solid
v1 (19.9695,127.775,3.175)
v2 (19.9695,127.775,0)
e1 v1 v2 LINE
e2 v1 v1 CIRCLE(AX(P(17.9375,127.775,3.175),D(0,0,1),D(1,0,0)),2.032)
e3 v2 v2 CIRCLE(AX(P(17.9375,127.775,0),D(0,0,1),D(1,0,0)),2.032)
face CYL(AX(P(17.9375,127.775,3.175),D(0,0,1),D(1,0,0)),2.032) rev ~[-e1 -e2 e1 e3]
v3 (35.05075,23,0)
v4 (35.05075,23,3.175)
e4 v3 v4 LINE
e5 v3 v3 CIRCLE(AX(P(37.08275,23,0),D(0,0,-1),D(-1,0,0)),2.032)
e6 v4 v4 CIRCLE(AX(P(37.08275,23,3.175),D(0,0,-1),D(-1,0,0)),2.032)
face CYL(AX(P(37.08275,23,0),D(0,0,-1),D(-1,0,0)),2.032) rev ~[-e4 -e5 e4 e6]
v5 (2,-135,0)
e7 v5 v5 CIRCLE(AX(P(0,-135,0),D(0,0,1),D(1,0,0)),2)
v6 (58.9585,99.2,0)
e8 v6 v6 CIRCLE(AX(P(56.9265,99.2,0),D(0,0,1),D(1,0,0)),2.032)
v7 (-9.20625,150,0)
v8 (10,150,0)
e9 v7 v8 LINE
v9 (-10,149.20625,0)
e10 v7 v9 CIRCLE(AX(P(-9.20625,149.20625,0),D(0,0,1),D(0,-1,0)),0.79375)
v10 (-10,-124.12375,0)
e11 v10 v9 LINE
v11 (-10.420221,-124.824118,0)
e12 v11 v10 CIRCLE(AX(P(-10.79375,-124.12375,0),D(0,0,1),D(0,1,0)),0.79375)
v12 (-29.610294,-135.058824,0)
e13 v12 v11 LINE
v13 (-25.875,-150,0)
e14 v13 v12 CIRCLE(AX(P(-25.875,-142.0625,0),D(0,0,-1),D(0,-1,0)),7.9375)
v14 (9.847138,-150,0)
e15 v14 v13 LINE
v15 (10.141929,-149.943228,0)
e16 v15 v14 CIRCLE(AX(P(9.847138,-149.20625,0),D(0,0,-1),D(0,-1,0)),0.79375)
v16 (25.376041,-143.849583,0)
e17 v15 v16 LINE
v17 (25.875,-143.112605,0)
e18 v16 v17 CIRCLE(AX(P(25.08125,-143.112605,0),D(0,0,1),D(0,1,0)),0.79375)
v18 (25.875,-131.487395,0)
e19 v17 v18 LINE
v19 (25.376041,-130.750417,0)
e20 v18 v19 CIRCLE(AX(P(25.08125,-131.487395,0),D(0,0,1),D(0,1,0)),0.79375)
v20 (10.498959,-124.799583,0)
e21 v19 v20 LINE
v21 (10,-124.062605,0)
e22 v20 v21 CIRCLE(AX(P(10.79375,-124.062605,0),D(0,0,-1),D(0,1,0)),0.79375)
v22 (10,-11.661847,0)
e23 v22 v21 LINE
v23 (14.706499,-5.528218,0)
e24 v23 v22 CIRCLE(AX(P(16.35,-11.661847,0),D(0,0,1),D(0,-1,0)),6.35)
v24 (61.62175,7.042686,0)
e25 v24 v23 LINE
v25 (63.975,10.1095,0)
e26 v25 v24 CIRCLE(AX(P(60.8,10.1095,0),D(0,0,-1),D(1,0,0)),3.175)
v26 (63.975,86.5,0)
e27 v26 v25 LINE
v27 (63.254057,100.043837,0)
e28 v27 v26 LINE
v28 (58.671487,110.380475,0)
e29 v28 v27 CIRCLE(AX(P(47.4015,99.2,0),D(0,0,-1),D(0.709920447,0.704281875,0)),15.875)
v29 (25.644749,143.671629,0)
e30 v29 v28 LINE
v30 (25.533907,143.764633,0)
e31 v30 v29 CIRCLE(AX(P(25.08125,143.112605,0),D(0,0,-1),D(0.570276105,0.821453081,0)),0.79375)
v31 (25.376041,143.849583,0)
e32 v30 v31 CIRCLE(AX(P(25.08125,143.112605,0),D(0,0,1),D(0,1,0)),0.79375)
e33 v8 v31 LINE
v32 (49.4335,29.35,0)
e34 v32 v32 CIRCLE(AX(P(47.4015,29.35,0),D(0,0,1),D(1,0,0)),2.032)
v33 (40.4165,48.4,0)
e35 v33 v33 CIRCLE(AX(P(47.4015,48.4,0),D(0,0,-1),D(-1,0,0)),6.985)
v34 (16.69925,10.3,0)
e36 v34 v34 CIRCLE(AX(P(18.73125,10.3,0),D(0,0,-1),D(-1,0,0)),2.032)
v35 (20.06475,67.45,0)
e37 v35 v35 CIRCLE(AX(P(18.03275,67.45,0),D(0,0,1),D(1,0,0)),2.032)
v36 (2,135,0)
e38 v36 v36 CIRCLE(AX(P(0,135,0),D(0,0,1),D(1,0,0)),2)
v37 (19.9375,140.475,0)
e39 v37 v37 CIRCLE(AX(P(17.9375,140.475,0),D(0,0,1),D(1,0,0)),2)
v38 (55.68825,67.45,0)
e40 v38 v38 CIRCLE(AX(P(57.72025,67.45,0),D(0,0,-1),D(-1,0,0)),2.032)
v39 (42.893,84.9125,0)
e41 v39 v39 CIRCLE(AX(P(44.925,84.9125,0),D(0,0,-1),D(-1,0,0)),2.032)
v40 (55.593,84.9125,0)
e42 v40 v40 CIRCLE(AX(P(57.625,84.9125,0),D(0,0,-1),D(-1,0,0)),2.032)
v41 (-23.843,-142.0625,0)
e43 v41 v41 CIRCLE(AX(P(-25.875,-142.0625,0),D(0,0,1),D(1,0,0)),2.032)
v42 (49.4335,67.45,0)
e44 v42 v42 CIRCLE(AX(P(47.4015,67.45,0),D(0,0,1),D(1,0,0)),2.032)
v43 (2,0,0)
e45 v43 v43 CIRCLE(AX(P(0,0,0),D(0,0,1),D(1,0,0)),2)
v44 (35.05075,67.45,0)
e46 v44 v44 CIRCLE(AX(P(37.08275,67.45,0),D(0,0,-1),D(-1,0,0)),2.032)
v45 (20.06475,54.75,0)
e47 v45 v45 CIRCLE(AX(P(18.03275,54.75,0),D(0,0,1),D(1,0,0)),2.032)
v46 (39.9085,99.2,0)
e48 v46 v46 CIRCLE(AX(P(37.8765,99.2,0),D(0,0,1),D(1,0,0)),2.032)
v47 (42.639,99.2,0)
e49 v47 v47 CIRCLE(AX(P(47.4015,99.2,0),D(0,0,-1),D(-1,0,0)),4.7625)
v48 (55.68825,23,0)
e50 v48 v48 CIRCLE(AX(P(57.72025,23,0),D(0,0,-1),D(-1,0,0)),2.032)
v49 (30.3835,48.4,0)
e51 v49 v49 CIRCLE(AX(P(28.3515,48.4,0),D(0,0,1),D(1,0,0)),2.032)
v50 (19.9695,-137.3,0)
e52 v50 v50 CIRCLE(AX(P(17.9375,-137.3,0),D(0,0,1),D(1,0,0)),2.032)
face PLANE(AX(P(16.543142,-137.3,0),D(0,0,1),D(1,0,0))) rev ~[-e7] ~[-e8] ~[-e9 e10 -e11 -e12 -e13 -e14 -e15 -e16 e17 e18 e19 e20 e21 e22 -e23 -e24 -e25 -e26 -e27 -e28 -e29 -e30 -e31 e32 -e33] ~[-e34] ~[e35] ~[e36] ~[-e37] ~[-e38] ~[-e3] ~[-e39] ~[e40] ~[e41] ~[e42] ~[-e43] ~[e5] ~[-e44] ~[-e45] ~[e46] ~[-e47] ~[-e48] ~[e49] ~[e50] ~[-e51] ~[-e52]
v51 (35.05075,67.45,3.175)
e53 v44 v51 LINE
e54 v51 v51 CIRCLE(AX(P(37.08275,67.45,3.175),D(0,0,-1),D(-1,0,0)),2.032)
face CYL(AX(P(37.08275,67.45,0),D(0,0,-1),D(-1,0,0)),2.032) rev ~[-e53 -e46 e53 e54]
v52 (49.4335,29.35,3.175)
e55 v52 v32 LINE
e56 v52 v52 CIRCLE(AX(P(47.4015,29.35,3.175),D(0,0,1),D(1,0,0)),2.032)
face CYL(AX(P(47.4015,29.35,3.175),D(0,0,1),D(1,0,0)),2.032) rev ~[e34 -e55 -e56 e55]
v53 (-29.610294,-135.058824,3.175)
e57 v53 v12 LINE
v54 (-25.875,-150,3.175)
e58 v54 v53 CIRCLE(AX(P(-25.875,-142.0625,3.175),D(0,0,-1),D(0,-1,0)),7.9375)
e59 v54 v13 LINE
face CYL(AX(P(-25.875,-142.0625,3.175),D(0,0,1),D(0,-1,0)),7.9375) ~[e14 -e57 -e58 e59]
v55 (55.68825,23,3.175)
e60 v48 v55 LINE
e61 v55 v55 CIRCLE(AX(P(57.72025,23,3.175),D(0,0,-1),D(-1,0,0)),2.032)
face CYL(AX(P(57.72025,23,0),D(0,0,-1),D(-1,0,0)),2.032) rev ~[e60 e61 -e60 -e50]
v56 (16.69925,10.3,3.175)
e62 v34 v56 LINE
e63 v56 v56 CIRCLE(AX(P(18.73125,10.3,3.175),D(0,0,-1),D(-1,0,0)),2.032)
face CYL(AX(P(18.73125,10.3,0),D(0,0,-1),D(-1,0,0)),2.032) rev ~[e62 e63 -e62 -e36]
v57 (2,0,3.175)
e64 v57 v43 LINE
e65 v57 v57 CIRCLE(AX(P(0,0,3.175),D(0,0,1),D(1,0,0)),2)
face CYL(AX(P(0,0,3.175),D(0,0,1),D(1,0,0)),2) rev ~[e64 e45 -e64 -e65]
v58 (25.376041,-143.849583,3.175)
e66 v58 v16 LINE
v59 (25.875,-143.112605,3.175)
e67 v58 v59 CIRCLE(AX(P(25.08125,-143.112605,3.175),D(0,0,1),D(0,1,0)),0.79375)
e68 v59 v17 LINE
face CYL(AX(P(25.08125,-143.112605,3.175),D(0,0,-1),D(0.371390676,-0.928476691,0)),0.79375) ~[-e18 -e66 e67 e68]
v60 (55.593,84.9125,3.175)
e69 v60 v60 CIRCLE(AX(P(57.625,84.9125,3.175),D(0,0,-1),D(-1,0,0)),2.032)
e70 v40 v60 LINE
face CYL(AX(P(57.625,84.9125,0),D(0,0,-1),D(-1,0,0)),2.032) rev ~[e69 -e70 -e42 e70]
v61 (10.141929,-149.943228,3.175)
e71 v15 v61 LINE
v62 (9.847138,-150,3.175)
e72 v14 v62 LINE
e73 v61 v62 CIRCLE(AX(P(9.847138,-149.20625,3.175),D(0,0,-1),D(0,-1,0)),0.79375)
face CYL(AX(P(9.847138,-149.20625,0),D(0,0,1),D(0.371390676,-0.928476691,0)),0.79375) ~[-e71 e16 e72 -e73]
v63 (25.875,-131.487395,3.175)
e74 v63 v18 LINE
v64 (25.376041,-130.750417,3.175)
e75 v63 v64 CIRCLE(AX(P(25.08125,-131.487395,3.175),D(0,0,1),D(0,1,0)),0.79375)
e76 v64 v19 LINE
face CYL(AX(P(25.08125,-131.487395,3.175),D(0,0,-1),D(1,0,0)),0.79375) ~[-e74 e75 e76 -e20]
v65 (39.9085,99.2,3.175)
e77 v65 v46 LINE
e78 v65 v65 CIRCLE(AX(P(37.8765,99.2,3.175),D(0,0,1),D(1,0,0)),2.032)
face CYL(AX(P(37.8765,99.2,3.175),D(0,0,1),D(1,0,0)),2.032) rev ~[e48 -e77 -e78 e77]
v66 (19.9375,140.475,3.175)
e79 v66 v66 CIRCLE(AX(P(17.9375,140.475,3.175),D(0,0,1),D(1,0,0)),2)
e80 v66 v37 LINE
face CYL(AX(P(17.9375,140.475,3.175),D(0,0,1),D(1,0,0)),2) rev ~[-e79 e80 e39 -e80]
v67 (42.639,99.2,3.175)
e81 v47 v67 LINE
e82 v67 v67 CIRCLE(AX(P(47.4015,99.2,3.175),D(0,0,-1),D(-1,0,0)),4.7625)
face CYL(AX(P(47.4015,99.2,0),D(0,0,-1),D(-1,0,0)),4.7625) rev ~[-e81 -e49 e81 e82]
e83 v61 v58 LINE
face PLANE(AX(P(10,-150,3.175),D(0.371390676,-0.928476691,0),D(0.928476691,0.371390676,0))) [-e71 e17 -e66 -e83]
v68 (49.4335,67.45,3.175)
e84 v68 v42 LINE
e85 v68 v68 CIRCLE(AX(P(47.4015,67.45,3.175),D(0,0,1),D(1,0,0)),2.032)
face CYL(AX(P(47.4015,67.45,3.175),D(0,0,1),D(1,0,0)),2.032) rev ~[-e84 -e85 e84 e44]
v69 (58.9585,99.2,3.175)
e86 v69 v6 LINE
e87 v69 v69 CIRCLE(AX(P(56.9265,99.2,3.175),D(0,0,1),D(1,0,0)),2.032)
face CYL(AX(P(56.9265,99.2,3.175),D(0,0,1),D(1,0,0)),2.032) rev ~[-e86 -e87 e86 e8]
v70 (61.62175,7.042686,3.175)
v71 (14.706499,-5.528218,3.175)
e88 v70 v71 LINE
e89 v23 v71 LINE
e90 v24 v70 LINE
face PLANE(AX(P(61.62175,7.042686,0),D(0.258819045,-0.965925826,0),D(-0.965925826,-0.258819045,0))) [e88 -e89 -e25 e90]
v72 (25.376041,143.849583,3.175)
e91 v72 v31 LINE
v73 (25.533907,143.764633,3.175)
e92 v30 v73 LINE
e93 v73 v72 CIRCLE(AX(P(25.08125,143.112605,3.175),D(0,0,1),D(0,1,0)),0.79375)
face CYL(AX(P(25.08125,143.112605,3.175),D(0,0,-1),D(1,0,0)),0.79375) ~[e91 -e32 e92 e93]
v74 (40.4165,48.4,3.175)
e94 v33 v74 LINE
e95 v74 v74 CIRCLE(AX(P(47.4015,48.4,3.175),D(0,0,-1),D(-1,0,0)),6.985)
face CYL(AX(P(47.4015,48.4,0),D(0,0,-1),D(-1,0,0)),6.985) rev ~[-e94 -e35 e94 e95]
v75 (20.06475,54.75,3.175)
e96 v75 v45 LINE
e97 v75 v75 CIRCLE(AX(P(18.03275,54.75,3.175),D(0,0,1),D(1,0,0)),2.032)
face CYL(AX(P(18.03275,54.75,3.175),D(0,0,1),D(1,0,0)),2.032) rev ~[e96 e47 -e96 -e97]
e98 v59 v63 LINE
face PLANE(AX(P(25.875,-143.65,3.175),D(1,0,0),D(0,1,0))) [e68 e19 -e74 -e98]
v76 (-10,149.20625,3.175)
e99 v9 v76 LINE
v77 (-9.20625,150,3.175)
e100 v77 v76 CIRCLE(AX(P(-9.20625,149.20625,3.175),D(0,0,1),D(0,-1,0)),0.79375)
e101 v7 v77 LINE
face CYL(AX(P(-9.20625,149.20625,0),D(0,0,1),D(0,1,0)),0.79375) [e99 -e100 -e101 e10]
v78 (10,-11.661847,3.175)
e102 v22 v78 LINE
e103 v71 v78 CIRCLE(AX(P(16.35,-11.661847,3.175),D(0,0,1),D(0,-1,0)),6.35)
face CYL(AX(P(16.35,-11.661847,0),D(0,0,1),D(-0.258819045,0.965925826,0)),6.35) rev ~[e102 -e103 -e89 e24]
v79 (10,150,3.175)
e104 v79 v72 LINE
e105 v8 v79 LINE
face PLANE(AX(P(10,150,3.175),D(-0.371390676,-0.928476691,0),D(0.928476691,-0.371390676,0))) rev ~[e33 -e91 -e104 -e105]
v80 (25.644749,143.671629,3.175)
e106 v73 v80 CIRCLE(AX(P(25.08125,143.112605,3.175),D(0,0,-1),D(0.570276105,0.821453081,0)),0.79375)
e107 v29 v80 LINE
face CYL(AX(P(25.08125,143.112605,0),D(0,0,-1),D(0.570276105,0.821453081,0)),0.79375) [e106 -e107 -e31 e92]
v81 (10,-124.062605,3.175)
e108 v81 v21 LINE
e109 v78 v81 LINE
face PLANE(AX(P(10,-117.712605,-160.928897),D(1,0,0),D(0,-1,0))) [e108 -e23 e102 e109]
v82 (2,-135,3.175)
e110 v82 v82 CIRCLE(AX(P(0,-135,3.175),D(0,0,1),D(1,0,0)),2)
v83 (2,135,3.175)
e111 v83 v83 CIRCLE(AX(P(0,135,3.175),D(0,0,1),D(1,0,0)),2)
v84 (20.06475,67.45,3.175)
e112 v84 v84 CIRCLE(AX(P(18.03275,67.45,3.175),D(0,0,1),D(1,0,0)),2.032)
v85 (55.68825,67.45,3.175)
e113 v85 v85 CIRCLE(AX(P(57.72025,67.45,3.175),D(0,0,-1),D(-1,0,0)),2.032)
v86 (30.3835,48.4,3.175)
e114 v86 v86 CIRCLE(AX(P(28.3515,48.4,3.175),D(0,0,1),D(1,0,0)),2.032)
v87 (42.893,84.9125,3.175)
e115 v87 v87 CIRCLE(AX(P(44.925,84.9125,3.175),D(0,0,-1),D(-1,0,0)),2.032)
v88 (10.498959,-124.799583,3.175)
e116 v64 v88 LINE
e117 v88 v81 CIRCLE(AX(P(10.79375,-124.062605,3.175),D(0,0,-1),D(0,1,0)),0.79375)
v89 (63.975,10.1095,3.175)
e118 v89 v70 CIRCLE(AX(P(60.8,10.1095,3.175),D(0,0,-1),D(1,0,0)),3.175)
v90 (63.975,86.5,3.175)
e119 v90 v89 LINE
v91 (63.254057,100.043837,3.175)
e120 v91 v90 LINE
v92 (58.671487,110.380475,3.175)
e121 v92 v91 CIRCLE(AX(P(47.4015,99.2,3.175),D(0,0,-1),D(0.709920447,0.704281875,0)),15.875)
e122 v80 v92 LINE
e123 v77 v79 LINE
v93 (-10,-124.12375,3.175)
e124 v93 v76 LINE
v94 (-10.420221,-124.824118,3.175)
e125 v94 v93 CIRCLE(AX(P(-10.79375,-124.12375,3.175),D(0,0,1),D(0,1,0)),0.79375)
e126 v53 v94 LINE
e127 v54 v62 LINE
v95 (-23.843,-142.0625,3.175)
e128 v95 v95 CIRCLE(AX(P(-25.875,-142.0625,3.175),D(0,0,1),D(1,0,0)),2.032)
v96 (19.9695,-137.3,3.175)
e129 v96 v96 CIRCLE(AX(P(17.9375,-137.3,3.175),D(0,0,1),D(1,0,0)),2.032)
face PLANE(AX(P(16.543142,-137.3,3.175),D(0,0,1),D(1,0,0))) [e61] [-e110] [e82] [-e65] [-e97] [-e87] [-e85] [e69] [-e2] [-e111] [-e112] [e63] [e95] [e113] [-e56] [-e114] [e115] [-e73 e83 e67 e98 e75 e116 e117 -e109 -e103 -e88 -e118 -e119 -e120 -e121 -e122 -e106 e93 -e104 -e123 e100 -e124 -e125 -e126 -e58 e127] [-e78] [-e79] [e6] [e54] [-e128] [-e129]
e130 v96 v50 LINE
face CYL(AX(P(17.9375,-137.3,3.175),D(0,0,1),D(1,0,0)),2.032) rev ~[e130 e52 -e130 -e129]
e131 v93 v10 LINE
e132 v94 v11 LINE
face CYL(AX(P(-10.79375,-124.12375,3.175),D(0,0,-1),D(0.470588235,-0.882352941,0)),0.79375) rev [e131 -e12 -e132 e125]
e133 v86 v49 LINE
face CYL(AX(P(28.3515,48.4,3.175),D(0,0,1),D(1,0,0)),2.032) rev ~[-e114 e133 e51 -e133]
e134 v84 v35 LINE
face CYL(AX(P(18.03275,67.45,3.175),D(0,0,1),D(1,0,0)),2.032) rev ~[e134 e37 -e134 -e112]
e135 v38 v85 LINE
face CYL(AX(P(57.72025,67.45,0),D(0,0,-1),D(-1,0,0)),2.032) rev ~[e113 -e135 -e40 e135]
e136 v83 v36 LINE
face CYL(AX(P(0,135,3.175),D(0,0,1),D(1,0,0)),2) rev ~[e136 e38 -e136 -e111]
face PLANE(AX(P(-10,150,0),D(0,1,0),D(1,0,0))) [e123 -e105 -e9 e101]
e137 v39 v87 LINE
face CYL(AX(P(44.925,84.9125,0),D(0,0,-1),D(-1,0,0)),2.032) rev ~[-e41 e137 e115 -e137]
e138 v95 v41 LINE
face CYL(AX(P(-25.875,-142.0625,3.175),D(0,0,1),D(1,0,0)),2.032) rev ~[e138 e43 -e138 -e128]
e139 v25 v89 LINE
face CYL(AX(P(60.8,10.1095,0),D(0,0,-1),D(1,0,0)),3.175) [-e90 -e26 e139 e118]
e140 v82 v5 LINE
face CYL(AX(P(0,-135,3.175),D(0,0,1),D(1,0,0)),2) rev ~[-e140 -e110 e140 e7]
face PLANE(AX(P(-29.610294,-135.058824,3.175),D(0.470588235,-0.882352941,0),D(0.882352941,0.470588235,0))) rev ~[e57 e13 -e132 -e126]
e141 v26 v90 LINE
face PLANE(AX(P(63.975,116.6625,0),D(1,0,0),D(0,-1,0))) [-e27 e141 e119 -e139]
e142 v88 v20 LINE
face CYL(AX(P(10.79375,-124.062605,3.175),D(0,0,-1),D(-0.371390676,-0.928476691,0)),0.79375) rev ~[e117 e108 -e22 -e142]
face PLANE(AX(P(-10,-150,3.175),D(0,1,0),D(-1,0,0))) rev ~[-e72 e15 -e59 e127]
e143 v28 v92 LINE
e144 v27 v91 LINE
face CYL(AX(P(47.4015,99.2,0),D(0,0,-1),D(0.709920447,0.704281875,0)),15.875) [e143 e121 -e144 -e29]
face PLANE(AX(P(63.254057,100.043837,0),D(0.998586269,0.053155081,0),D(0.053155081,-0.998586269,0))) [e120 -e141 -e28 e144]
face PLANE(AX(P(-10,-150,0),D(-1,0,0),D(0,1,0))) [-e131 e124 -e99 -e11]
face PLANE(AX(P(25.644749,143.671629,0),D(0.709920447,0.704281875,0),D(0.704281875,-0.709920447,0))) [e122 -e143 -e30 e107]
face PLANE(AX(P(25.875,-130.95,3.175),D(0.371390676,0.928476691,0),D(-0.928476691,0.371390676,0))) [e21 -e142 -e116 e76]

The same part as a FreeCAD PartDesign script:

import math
import FreeCAD as App
import Part
import Sketcher
from FreeCAD import Vector
Q = App.Units.Quantity


def edges_at(feature, points):
    """Names of the edges that pass closest to the given points."""
    edges = feature.Shape.Edges
    near = lambda p: min(range(len(edges)), key=lambda i: edges[i].distToShape(Part.Vertex(*p))[0])
    return sorted({f"Edge{near(p) + 1}" for p in points})

doc = App.newDocument("Part")
body = doc.addObject("PartDesign::Body", "Body")

sketch1 = doc.addObject("Sketcher::SketchObject", "Sketch")
body.addObject(sketch1)
sketch1.AttachmentSupport = (doc.XY_Plane, [""])
sketch1.MapMode = "FlatFace"
sketch1.addGeometry(Part.LineSegment(Vector(-10, 150, 0), Vector(-10, -150, 0)), False)
sketch1.addGeometry(Part.LineSegment(Vector(-10, -150, 0), Vector(10, -150, 0)), False)
sketch1.addGeometry(Part.LineSegment(Vector(10, -150, 0), Vector(10, 150, 0)), False)
sketch1.addGeometry(Part.LineSegment(Vector(10, 150, 0), Vector(-10, 150, 0)), False)
sketch1.addConstraint(Sketcher.Constraint("Coincident", 0, 2, 1, 1))
sketch1.addConstraint(Sketcher.Constraint("Coincident", 1, 2, 2, 1))
sketch1.addConstraint(Sketcher.Constraint("Coincident", 2, 2, 3, 1))
sketch1.addConstraint(Sketcher.Constraint("Coincident", 3, 2, 0, 1))
sketch1.addConstraint(Sketcher.Constraint("Vertical", 0))
sketch1.addConstraint(Sketcher.Constraint("Horizontal", 1))
sketch1.addConstraint(Sketcher.Constraint("Vertical", 2))
sketch1.addConstraint(Sketcher.Constraint("Horizontal", 3))
sketch1.addConstraint(Sketcher.Constraint("Symmetric", 0, 2, 2, 2, -1, 1))
sketch1.addConstraint(Sketcher.Constraint("DistanceX", 1, 1, 1, 2, 20.0))
sketch1.addConstraint(Sketcher.Constraint("DistanceY", 0, 2, 0, 1, 300.0))
pad1 = doc.addObject("PartDesign::Pad", "Pad")
body.addObject(pad1)
pad1.Profile = sketch1
pad1.Length = Q("0.125 in")

sketch2 = doc.addObject("Sketcher::SketchObject", "Sketch001")
body.addObject(sketch2)
sketch2.AttachmentSupport = (doc.XY_Plane, [""])
sketch2.MapMode = "FlatFace"
sketch2.AttachmentOffset = App.Placement(Vector(0, 0, 0.125 * 25.4), App.Rotation())
sketch2.addGeometry(Part.LineSegment(Vector(25.875, 143.65, 0), Vector(10, 150, 0)), False)
sketch2.addGeometry(Part.LineSegment(Vector(10, 150, 0), Vector(10, 118.25, 0)), False)
sketch2.addGeometry(Part.LineSegment(Vector(10, 118.25, 0), Vector(25.875, 124.6, 0)), False)
sketch2.addGeometry(Part.LineSegment(Vector(25.875, 124.6, 0), Vector(25.875, 143.65, 0)), False)
sketch2.addGeometry(Part.Circle(Vector(17.9375, 127.775, 0), Vector(0, 0, 1), 2.032), False)
sketch2.addGeometry(Part.Circle(Vector(17.9375, 140.475, 0), Vector(0, 0, 1), 2), False)
sketch2.addGeometry(Part.LineSegment(Vector(10, -118.25, 0), Vector(10, -150, 0)), False)
sketch2.addGeometry(Part.LineSegment(Vector(10, -150, 0), Vector(25.875, -143.65, 0)), False)
sketch2.addGeometry(Part.LineSegment(Vector(25.875, -143.65, 0), Vector(25.875, -124.6, 0)), False)
sketch2.addGeometry(Part.LineSegment(Vector(25.875, -124.6, 0), Vector(10, -118.25, 0)), False)
sketch2.addGeometry(Part.Circle(Vector(17.9375, -140.475, 0), Vector(0, 0, 1), 2), False)
sketch2.addGeometry(Part.Circle(Vector(17.9375, -127.775, 0), Vector(0, 0, 1), 2), False)
sketch2.addConstraint(Sketcher.Constraint("Coincident", 0, 2, 1, 1))
sketch2.addConstraint(Sketcher.Constraint("Coincident", 1, 2, 2, 1))
sketch2.addConstraint(Sketcher.Constraint("Coincident", 2, 2, 3, 1))
sketch2.addConstraint(Sketcher.Constraint("Coincident", 3, 2, 0, 1))
sketch2.addConstraint(Sketcher.Constraint("Coincident", 6, 2, 7, 1))
sketch2.addConstraint(Sketcher.Constraint("Coincident", 7, 2, 8, 1))
sketch2.addConstraint(Sketcher.Constraint("Coincident", 8, 2, 9, 1))
sketch2.addConstraint(Sketcher.Constraint("Coincident", 9, 2, 6, 1))
sketch2.addConstraint(Sketcher.Constraint("Vertical", 1))
sketch2.addConstraint(Sketcher.Constraint("Vertical", 3))
sketch2.addConstraint(Sketcher.Constraint("Vertical", 6))
sketch2.addConstraint(Sketcher.Constraint("Vertical", 8))
sketch2.addConstraint(Sketcher.Constraint("Equal", 5, 10))
sketch2.addConstraint(Sketcher.Constraint("Equal", 10, 11))
sketch2.addConstraint(Sketcher.Constraint("Symmetric", 5, 3, 10, 3, -1))
sketch2.addConstraint(Sketcher.Constraint("Symmetric", 4, 3, 11, 3, -1))
sketch2.addConstraint(Sketcher.Constraint("Symmetric", 0, 2, 6, 2, -1))
sketch2.addConstraint(Sketcher.Constraint("Symmetric", 3, 2, 7, 2, -1))
sketch2.addConstraint(Sketcher.Constraint("Parallel", 2, 7))
sketch2.addConstraint(Sketcher.Constraint("Parallel", 0, 9))
sketch2.addConstraint(Sketcher.Constraint("Vertical", 4, 3, 5, 3))
sketch2.addConstraint(Sketcher.Constraint("Equal", 1, 6))
sketch2.addConstraint(Sketcher.Constraint("Diameter", 4, Q("0.16 in")))
sketch2.addConstraint(Sketcher.Constraint("DistanceY", 2, 2, 0, 2, Q("1 in")))
sketch2.addConstraint(Sketcher.Constraint("DistanceY", 1, 2, 1, 1, Q("1.25 in")))
sketch2.addConstraint(Sketcher.Constraint("DistanceY", 4, 3, 5, 3, Q("0.5 in")))
sketch2.addConstraint(Sketcher.Constraint("Diameter", 5, 4.0))
sketch2.addConstraint(Sketcher.Constraint("DistanceX", 0, 2, 5, 3, Q("0.3125 in")))
sketch2.addConstraint(Sketcher.Constraint("DistanceY", 5, 3, 0, 2, Q("0.375 in")))
sketch2.addConstraint(Sketcher.Constraint("DistanceX", 4, 3, 2, 2, Q("0.3125 in")))
sketch2.addConstraint(Sketcher.Constraint("DistanceX", -1, 1, 4, 3, 17.9375))
sketch2.addConstraint(Sketcher.Constraint("DistanceY", -1, 1, 4, 3, 127.775))
pad2 = doc.addObject("PartDesign::Pad", "Pad001")
body.addObject(pad2)
pad2.Profile = sketch2
pad2.Length = Q("0.125 in")
pad2.Reversed = True

sketch3 = doc.addObject("Sketcher::SketchObject", "Sketch002")
body.addObject(sketch3)
sketch3.AttachmentSupport = (doc.XY_Plane, [""])
sketch3.MapMode = "FlatFace"
sketch3.AttachmentOffset = App.Placement(Vector(0, 0, 0.125 * 25.4), App.Rotation())
sketch3.addGeometry(Part.Circle(Vector(0, -135, 0), Vector(0, 0, 1), 2), False)
sketch3.addGeometry(Part.Circle(Vector(0, 0, 0), Vector(0, 0, 1), 2), False)
sketch3.addGeometry(Part.Circle(Vector(0, 135, 0), Vector(0, 0, 1), 2), False)
sketch3.addConstraint(Sketcher.Constraint("Coincident", 1, 3, -1, 1))
sketch3.addConstraint(Sketcher.Constraint("Equal", 0, 1))
sketch3.addConstraint(Sketcher.Constraint("Equal", 1, 2))
sketch3.addConstraint(Sketcher.Constraint("Symmetric", 0, 3, 2, 3, -1, 1))
sketch3.addConstraint(Sketcher.Constraint("PointOnObject", 0, 3, -2))
sketch3.addConstraint(Sketcher.Constraint("Diameter", 0, 4.0))
sketch3.addConstraint(Sketcher.Constraint("DistanceY", 0, 3, -1, 1, 135.0))
pocket1 = doc.addObject("PartDesign::Pocket", "Pocket")
body.addObject(pocket1)
pocket1.Profile = sketch3
pocket1.Type = "ThroughAll"

sketch4 = doc.addObject("Sketcher::SketchObject", "Sketch003")
body.addObject(sketch4)
sketch4.AttachmentSupport = (doc.XY_Plane, [""])
sketch4.MapMode = "FlatFace"
sketch4.AttachmentOffset = App.Placement(Vector(0, 0, 0.125 * 25.4), App.Rotation())
sketch4.addGeometry(Part.LineSegment(Vector(-10, -150, 0), Vector(-10, -124.6, 0)), False)
sketch4.addGeometry(Part.LineSegment(Vector(-10, -124.6, 0), Vector(-29.610294, -135.058824, 0)), False)
sketch4.addGeometry(Part.ArcOfCircle(Part.Circle(Vector(-25.875, -142.0625, 0), Vector(0, 0, 1), 7.9375), math.radians(118.072487), math.radians(270)), False)
sketch4.addGeometry(Part.LineSegment(Vector(-25.875, -150, 0), Vector(-10, -150, 0)), False)
sketch4.addGeometry(Part.Circle(Vector(-25.875, -142.0625, 0), Vector(0, 0, 1), 2.032), False)
sketch4.addConstraint(Sketcher.Constraint("Coincident", 0, 2, 1, 1))
sketch4.addConstraint(Sketcher.Constraint("Tangent", 1, 2, 2, 1))
sketch4.addConstraint(Sketcher.Constraint("Tangent", 2, 2, 3, 1))
sketch4.addConstraint(Sketcher.Constraint("Coincident", 3, 2, 0, 1))
sketch4.addConstraint(Sketcher.Constraint("Vertical", 0))
sketch4.addConstraint(Sketcher.Constraint("Horizontal", 3))
sketch4.addConstraint(Sketcher.Constraint("Coincident", 4, 3, 2, 3))
sketch4.addConstraint(Sketcher.Constraint("Diameter", 4, Q("0.16 in")))
sketch4.addConstraint(Sketcher.Constraint("DistanceY", 0, 1, 0, 2, Q("1 in")))
sketch4.addConstraint(Sketcher.Constraint("Radius", 2, Q("0.3125 in")))
sketch4.addConstraint(Sketcher.Constraint("DistanceX", 3, 1, 3, 2, Q("0.625 in")))
sketch4.addConstraint(Sketcher.Constraint("DistanceX", 2, 3, -1, 1, 25.875))
sketch4.addConstraint(Sketcher.Constraint("DistanceY", 2, 3, -1, 1, 142.0625))
pad3 = doc.addObject("PartDesign::Pad", "Pad002")
body.addObject(pad3)
pad3.Profile = sketch4
pad3.Length = Q("0.125 in")
pad3.Reversed = True
doc.recompute()

fillet = doc.addObject("PartDesign::Fillet", "Fillet")
body.addObject(fillet)
fillet.Base = (pad3, edges_at(pad3, [
    (25.875, 124.6, 1.587),
    (25.875, 143.65, 1.587),
    (10, 118.25, 1.587),
    (25.875, -143.65, 1.587),
    (25.875, -124.6, 1.587),
    (10, -118.25, 1.587),
    (-10, -124.6, 1.587),
    (-10, 150, 1.587),
]))
fillet.Radius = Q("0.03125 in")

sketch5 = doc.addObject("Sketcher::SketchObject", "Sketch004")
body.addObject(sketch5)
sketch5.AttachmentSupport = (doc.XY_Plane, [""])
sketch5.MapMode = "FlatFace"
sketch5.addGeometry(Part.LineSegment(Vector(25.533907, 143.764633, 0), Vector(63.633907, 117.314528, 0)), False)
sketch5.addGeometry(Part.ArcOfCircle(Part.Circle(Vector(63.18125, 116.6625, 0), Vector(0, 0, 1), 0.79375), math.radians(0), math.radians(55.230518)), False)
sketch5.addGeometry(Part.LineSegment(Vector(63.975, 116.6625, 0), Vector(63.975, 10.1095, 0)), False)
sketch5.addGeometry(Part.ArcOfCircle(Part.Circle(Vector(60.8, 10.1095, 0), Vector(0, 0, 1), 3.175), math.radians(-75), math.radians(0)), False)
sketch5.addGeometry(Part.LineSegment(Vector(61.62175, 7.042686, 0), Vector(10, -6.789321, 0)), False)
sketch5.addGeometry(Part.LineSegment(Vector(10, -6.789321, 0), Vector(10, 117.712605, 0)), False)
sketch5.addGeometry(Part.ArcOfCircle(Part.Circle(Vector(10.79375, 117.712605, 0), Vector(0, 0, 1), 0.79375), math.radians(111.801409), math.radians(180)), False)
sketch5.addGeometry(Part.LineSegment(Vector(10.498959, 118.449583, 0), Vector(25.376041, 124.400417, 0)), False)
sketch5.addGeometry(Part.ArcOfCircle(Part.Circle(Vector(25.08125, 125.137395, 0), Vector(0, 0, 1), 0.79375), math.radians(-68.198591), math.radians(0)), False)
sketch5.addGeometry(Part.LineSegment(Vector(25.875, 125.137395, 0), Vector(25.875, 143.112605, 0)), False)
sketch5.addGeometry(Part.ArcOfCircle(Part.Circle(Vector(25.08125, 143.112605, 0), Vector(0, 0, 1), 0.79375), math.radians(0), math.radians(55.230518)), False)
sketch5.addGeometry(Part.Circle(Vector(57.72025, 23, 0), Vector(0, 0, 1), 2.032), False)
sketch5.addGeometry(Part.Circle(Vector(47.4015, 48.4, 0), Vector(0, 0, 1), 6.985), False)
sketch5.addGeometry(Part.Circle(Vector(37.08275, 23, 0), Vector(0, 0, 1), 2.032), False)
sketch5.addGeometry(Part.Circle(Vector(18.73125, 10.3, 0), Vector(0, 0, 1), 2.032), False)
sketch5.addGeometry(Part.Circle(Vector(57.72025, 67.45, 0), Vector(0, 0, 1), 2.032), False)
sketch5.addGeometry(Part.Circle(Vector(47.4015, 99.2, 0), Vector(0, 0, 1), 4.7625), False)
sketch5.addGeometry(Part.Circle(Vector(37.08275, 67.45, 0), Vector(0, 0, 1), 2.032), False)
sketch5.addConstraint(Sketcher.Constraint("Tangent", 0, 2, 1, 2))
sketch5.addConstraint(Sketcher.Constraint("Tangent", 1, 1, 2, 1))
sketch5.addConstraint(Sketcher.Constraint("Tangent", 2, 2, 3, 2))
sketch5.addConstraint(Sketcher.Constraint("Tangent", 3, 1, 4, 1))
sketch5.addConstraint(Sketcher.Constraint("Coincident", 4, 2, 5, 1))
sketch5.addConstraint(Sketcher.Constraint("Tangent", 5, 2, 6, 2))
sketch5.addConstraint(Sketcher.Constraint("Tangent", 6, 1, 7, 1))
sketch5.addConstraint(Sketcher.Constraint("Tangent", 7, 2, 8, 1))
sketch5.addConstraint(Sketcher.Constraint("Tangent", 8, 2, 9, 1))
sketch5.addConstraint(Sketcher.Constraint("Tangent", 9, 2, 10, 1))
sketch5.addConstraint(Sketcher.Constraint("Tangent", 10, 2, 0, 1))
sketch5.addConstraint(Sketcher.Constraint("Vertical", 2))
sketch5.addConstraint(Sketcher.Constraint("Vertical", 5))
sketch5.addConstraint(Sketcher.Constraint("Vertical", 9))
sketch5.addConstraint(Sketcher.Constraint("Equal", 1, 6))
sketch5.addConstraint(Sketcher.Constraint("Equal", 6, 8))
sketch5.addConstraint(Sketcher.Constraint("Equal", 8, 10))
sketch5.addConstraint(Sketcher.Constraint("Equal", 11, 13))
sketch5.addConstraint(Sketcher.Constraint("Equal", 13, 14))
sketch5.addConstraint(Sketcher.Constraint("Equal", 14, 15))
sketch5.addConstraint(Sketcher.Constraint("Equal", 15, 17))
sketch5.addConstraint(Sketcher.Constraint("Horizontal", 11, 3, 13, 3))
sketch5.addConstraint(Sketcher.Constraint("Horizontal", 15, 3, 17, 3))
sketch5.addConstraint(Sketcher.Constraint("Vertical", 11, 3, 15, 3))
sketch5.addConstraint(Sketcher.Constraint("Vertical", 12, 3, 16, 3))
sketch5.addConstraint(Sketcher.Constraint("Vertical", 13, 3, 17, 3))
sketch5.addConstraint(Sketcher.Constraint("Diameter", 11, Q("0.16 in")))
sketch5.addConstraint(Sketcher.Constraint("Diameter", 12, Q("0.55 in")))
sketch5.addConstraint(Sketcher.Constraint("Diameter", 16, Q("0.375 in")))
sketch5.addConstraint(Sketcher.Constraint("Angle", 4, Q("-165 deg")))
sketch5.addConstraint(Sketcher.Constraint("Radius", 1, Q("0.03125 in")))
sketch5.addConstraint(Sketcher.Constraint("Radius", 3, Q("0.125 in")))
sketch5.addConstraint(Sketcher.Constraint("DistanceY", 6, 3, 10, 3, Q("1 in")))
sketch5.addConstraint(Sketcher.Constraint("DistanceY", 11, 3, 12, 3, Q("1 in")))
sketch5.addConstraint(Sketcher.Constraint("DistanceX", 4, 2, 3, 3, Q("2 in")))
sketch5.addConstraint(Sketcher.Constraint("DistanceX", 8, 3, 1, 3, Q("1.5 in")))
sketch5.addConstraint(Sketcher.Constraint("DistanceY", 14, 3, 13, 3, Q("0.5 in")))
sketch5.addConstraint(Sketcher.Constraint("DistanceY", 2, 2, 2, 1, Q("4.195 in")))
sketch5.addConstraint(Sketcher.Constraint("DistanceY", 12, 3, 15, 3, Q("0.75 in")))
sketch5.addConstraint(Sketcher.Constraint("DistanceY", 15, 3, 16, 3, Q("1.25 in")))
sketch5.addConstraint(Sketcher.Constraint("DistanceX", 11, 3, 1, 3, Q("0.215 in")))
sketch5.addConstraint(Sketcher.Constraint("DistanceY", 11, 3, 1, 3, Q("3.6875 in")))
sketch5.addConstraint(Sketcher.Constraint("DistanceX", 12, 3, 11, 3, Q("0.40625 in")))
sketch5.addConstraint(Sketcher.Constraint("DistanceX", 13, 3, 11, 3, Q("0.8125 in")))
sketch5.addConstraint(Sketcher.Constraint("DistanceX", 14, 3, 11, 3, Q("1.535 in")))
sketch5.addConstraint(Sketcher.Constraint("DistanceY", 9, 1, 9, 2, 17.97521))
sketch5.addConstraint(Sketcher.Constraint("DistanceY", -1, 1, 1, 3, 116.6625))
sketch5.addConstraint(Sketcher.Constraint("DistanceX", -1, 1, 3, 3, 60.8))
sketch5.addConstraint(Sketcher.Constraint("DistanceY", 5, 1, 5, 2, 124.501926))
pad4 = doc.addObject("PartDesign::Pad", "Pad003")
body.addObject(pad4)
pad4.Profile = sketch5
pad4.Length = Q("0.125 in")

sketch6 = doc.addObject("Sketcher::SketchObject", "Sketch005")
body.addObject(sketch6)
sketch6.AttachmentSupport = (doc.XY_Plane, [""])
sketch6.MapMode = "FlatFace"
sketch6.AttachmentOffset = App.Placement(Vector(0, 0, 0.125 * 25.4), App.Rotation())
sketch6.addGeometry(Part.Circle(Vector(47.4015, 67.45, 0), Vector(0, 0, 1), 2.032), False)
sketch6.addGeometry(Part.Circle(Vector(28.3515, 48.4, 0), Vector(0, 0, 1), 2.032), False)
sketch6.addGeometry(Part.Circle(Vector(47.4015, 29.35, 0), Vector(0, 0, 1), 2.032), False)
sketch6.addGeometry(Part.Circle(Vector(56.9265, 99.2, 0), Vector(0, 0, 1), 2.032), False)
sketch6.addGeometry(Part.Circle(Vector(37.8765, 99.2, 0), Vector(0, 0, 1), 2.032), False)
sketch6.addGeometry(Part.Circle(Vector(18.03275, 54.75, 0), Vector(0, 0, 1), 2.032), False)
sketch6.addGeometry(Part.Circle(Vector(18.03275, 67.45, 0), Vector(0, 0, 1), 2.032), False)
sketch6.addConstraint(Sketcher.Constraint("Equal", 0, 1))
sketch6.addConstraint(Sketcher.Constraint("Equal", 1, 2))
sketch6.addConstraint(Sketcher.Constraint("Equal", 2, 3))
sketch6.addConstraint(Sketcher.Constraint("Equal", 3, 4))
sketch6.addConstraint(Sketcher.Constraint("Equal", 4, 5))
sketch6.addConstraint(Sketcher.Constraint("Equal", 5, 6))
sketch6.addConstraint(Sketcher.Constraint("Horizontal", 3, 3, 4, 3))
sketch6.addConstraint(Sketcher.Constraint("Horizontal", 0, 3, 6, 3))
sketch6.addConstraint(Sketcher.Constraint("Vertical", 0, 3, 2, 3))
sketch6.addConstraint(Sketcher.Constraint("Vertical", 5, 3, 6, 3))
sketch6.addConstraint(Sketcher.Constraint("Diameter", 0, Q("0.16 in")))
sketch6.addConstraint(Sketcher.Constraint("DistanceY", 1, 3, 3, 3, Q("2 in")))
sketch6.addConstraint(Sketcher.Constraint("DistanceY", 2, 3, 5, 3, Q("1 in")))
sketch6.addConstraint(Sketcher.Constraint("DistanceY", 2, 3, 0, 3, Q("1.5 in")))
sketch6.addConstraint(Sketcher.Constraint("DistanceX", 1, 3, 0, 3, Q("0.75 in")))
sketch6.addConstraint(Sketcher.Constraint("DistanceY", 1, 3, 0, 3, Q("0.75 in")))
sketch6.addConstraint(Sketcher.Constraint("DistanceX", 4, 3, 3, 3, Q("0.75 in")))
sketch6.addConstraint(Sketcher.Constraint("DistanceX", 0, 3, 3, 3, Q("0.375 in")))
sketch6.addConstraint(Sketcher.Constraint("DistanceX", 5, 3, 1, 3, Q("0.40625 in")))
sketch6.addConstraint(Sketcher.Constraint("DistanceX", -1, 1, 0, 3, 47.4015))
sketch6.addConstraint(Sketcher.Constraint("DistanceY", -1, 1, 0, 3, 67.45))
pocket2 = doc.addObject("PartDesign::Pocket", "Pocket001")
body.addObject(pocket2)
pocket2.Profile = sketch6
pocket2.Type = "ThroughAll"

sketch7 = doc.addObject("Sketcher::SketchObject", "Sketch006")
body.addObject(sketch7)
sketch7.AttachmentSupport = (doc.XY_Plane, [""])
sketch7.MapMode = "FlatFace"
sketch7.addGeometry(Part.LineSegment(Vector(58.671487, 110.380475, 0), Vector(25.644749, 143.671629, 0)), False)
sketch7.addGeometry(Part.ArcOfCircle(Part.Circle(Vector(25.08125, 143.112605, 0), Vector(0, 0, 1), 0.79375), math.radians(44.771556), math.radians(55.230518)), False)
sketch7.addGeometry(Part.LineSegment(Vector(25.533907, 143.764633, 0), Vector(63.633907, 117.314528, 0)), False)
sketch7.addGeometry(Part.ArcOfCircle(Part.Circle(Vector(63.18125, 116.6625, 0), Vector(0, 0, 1), 0.79375), math.radians(0), math.radians(55.230518)), False)
sketch7.addGeometry(Part.LineSegment(Vector(63.975, 116.6625, 0), Vector(63.975, 86.5, 0)), False)
sketch7.addGeometry(Part.LineSegment(Vector(63.975, 86.5, 0), Vector(63.254057, 100.043837, 0)), False)
sketch7.addGeometry(Part.ArcOfCircle(Part.Circle(Vector(47.4015, 99.2, 0), Vector(0, 0, 1), 15.875), math.radians(3.046998), math.radians(44.771557)), False)
sketch7.addConstraint(Sketcher.Constraint("Coincident", 0, 2, 1, 1))
sketch7.addConstraint(Sketcher.Constraint("Coincident", 1, 2, 2, 1))
sketch7.addConstraint(Sketcher.Constraint("Coincident", 2, 2, 3, 2))
sketch7.addConstraint(Sketcher.Constraint("Coincident", 3, 1, 4, 1))
sketch7.addConstraint(Sketcher.Constraint("Coincident", 4, 2, 5, 1))
sketch7.addConstraint(Sketcher.Constraint("Coincident", 5, 2, 6, 1))
sketch7.addConstraint(Sketcher.Constraint("Coincident", 6, 2, 0, 1))
sketch7.addConstraint(Sketcher.Constraint("Vertical", 4))
sketch7.addConstraint(Sketcher.Constraint("Radius", 1, Q("0.03125 in")))
sketch7.addConstraint(Sketcher.Constraint("Radius", 3, Q("0.03125 in")))
sketch7.addConstraint(Sketcher.Constraint("Radius", 6, Q("0.625 in")))
sketch7.addConstraint(Sketcher.Constraint("DistanceX", 1, 3, 3, 3, Q("1.5 in")))
sketch7.addConstraint(Sketcher.Constraint("DistanceX", 1, 2, 2, 2, Q("1.5 in")))
sketch7.addConstraint(Sketcher.Constraint("DistanceY", 4, 2, 6, 3, Q("0.5 in")))
sketch7.addConstraint(Sketcher.Constraint("DistanceY", 4, 2, 4, 1, Q("1.1875 in")))
sketch7.addConstraint(Sketcher.Constraint("DistanceY", 6, 3, 3, 3, Q("0.6875 in")))
sketch7.addConstraint(Sketcher.Constraint("DistanceX", 6, 3, 3, 1, Q("0.6525 in")))
sketch7.addConstraint(Sketcher.Constraint("DistanceY", -1, 1, 3, 3, 116.6625))
sketch7.addConstraint(Sketcher.Constraint("DistanceX", -1, 1, 6, 3, 47.4015))
sketch7.addConstraint(Sketcher.Constraint("DistanceX", 1, 3, 0, 2, 0.563499))
sketch7.addConstraint(Sketcher.Constraint("DistanceY", 2, 2, 0, 2, 26.3571))
sketch7.addConstraint(Sketcher.Constraint("Distance", 5, 13.563011))
sketch7.addConstraint(Sketcher.Constraint("DistanceY", -1, 1, 0, 2, 143.671629))
sketch7.addConstraint(Sketcher.Constraint("DistanceX", 6, 2, 2, 2, 4.96242))
pocket3 = doc.addObject("PartDesign::Pocket", "Pocket002")
body.addObject(pocket3)
pocket3.Profile = sketch7
pocket3.Type = "ThroughAll"
pocket3.Reversed = True

sketch8 = doc.addObject("Sketcher::SketchObject", "Sketch007")
body.addObject(sketch8)
sketch8.AttachmentSupport = (doc.XY_Plane, [""])
sketch8.MapMode = "FlatFace"
sketch8.addGeometry(Part.Circle(Vector(57.625, 84.9125, 0), Vector(0, 0, 1), 2.032), False)
sketch8.addGeometry(Part.Circle(Vector(44.925, 84.9125, 0), Vector(0, 0, 1), 2.032), False)
sketch8.addConstraint(Sketcher.Constraint("Equal", 0, 1))
sketch8.addConstraint(Sketcher.Constraint("Horizontal", 0, 3, 1, 3))
sketch8.addConstraint(Sketcher.Constraint("Diameter", 0, Q("0.16 in")))
sketch8.addConstraint(Sketcher.Constraint("DistanceX", 1, 3, 0, 3, Q("0.5 in")))
sketch8.addConstraint(Sketcher.Constraint("DistanceX", -1, 1, 0, 3, 57.625))
sketch8.addConstraint(Sketcher.Constraint("DistanceY", -1, 1, 0, 3, 84.9125))
pocket4 = doc.addObject("PartDesign::Pocket", "Pocket003")
body.addObject(pocket4)
pocket4.Profile = sketch8
pocket4.Type = "ThroughAll"
pocket4.Reversed = True
doc.recompute()

fillet2 = doc.addObject("PartDesign::Fillet", "Fillet001")
body.addObject(fillet2)
fillet2.Base = (pocket4, edges_at(pocket4, [(10, -6.789, 1.587)]))
fillet2.Radius = Q("0.25 in")

sketch9 = doc.addObject("Sketcher::SketchObject", "Sketch008")
body.addObject(sketch9)
sketch9.AttachmentSupport = (doc.XY_Plane, [""])
sketch9.MapMode = "FlatFace"
sketch9.AttachmentOffset = App.Placement(Vector(0, 0, 0.125 * 25.4), App.Rotation())
sketch9.addGeometry(Part.ArcOfCircle(Part.Circle(Vector(10.79375, -117.712605, 0), Vector(0, 0, 1), 0.79375), math.radians(-180), math.radians(-111.801409)), False)
sketch9.addGeometry(Part.LineSegment(Vector(10, -117.712605, 0), Vector(10, -150, 0)), False)
sketch9.addGeometry(Part.LineSegment(Vector(10, -150, 0), Vector(25.376041, -143.849583, 0)), False)
sketch9.addGeometry(Part.ArcOfCircle(Part.Circle(Vector(25.08125, -143.112605, 0), Vector(0, 0, 1), 0.79375), math.radians(-68.198591), math.radians(0)), False)
sketch9.addGeometry(Part.LineSegment(Vector(25.875, -143.112605, 0), Vector(25.875, -125.137395, 0)), False)
sketch9.addGeometry(Part.ArcOfCircle(Part.Circle(Vector(25.08125, -125.137395, 0), Vector(0, 0, 1), 0.79375), math.radians(0), math.radians(68.198591)), False)
sketch9.addGeometry(Part.LineSegment(Vector(25.376041, -124.400417, 0), Vector(10.498959, -118.449583, 0)), False)
sketch9.addGeometry(Part.Circle(Vector(17.9375, -140.475, 0), Vector(0, 0, 1), 2), False)
sketch9.addGeometry(Part.Circle(Vector(17.9375, -127.775, 0), Vector(0, 0, 1), 2), False)
sketch9.addConstraint(Sketcher.Constraint("Tangent", 0, 1, 1, 1))
sketch9.addConstraint(Sketcher.Constraint("Coincident", 1, 2, 2, 1))
sketch9.addConstraint(Sketcher.Constraint("Tangent", 2, 2, 3, 1))
sketch9.addConstraint(Sketcher.Constraint("Tangent", 3, 2, 4, 1))
sketch9.addConstraint(Sketcher.Constraint("Tangent", 4, 2, 5, 1))
sketch9.addConstraint(Sketcher.Constraint("Tangent", 5, 2, 6, 1))
sketch9.addConstraint(Sketcher.Constraint("Tangent", 6, 2, 0, 2))
sketch9.addConstraint(Sketcher.Constraint("Vertical", 1))
sketch9.addConstraint(Sketcher.Constraint("Vertical", 4))
sketch9.addConstraint(Sketcher.Constraint("Equal", 0, 3))
sketch9.addConstraint(Sketcher.Constraint("Equal", 3, 5))
sketch9.addConstraint(Sketcher.Constraint("Equal", 7, 8))
sketch9.addConstraint(Sketcher.Constraint("Vertical", 7, 3, 8, 3))
sketch9.addConstraint(Sketcher.Constraint("Vertical", 2, 2, 5, 2))
sketch9.addConstraint(Sketcher.Constraint("Radius", 0, Q("0.03125 in")))
sketch9.addConstraint(Sketcher.Constraint("DistanceY", 3, 3, 0, 3, Q("1 in")))
sketch9.addConstraint(Sketcher.Constraint("DistanceY", 7, 3, 8, 3, Q("0.5 in")))
sketch9.addConstraint(Sketcher.Constraint("Diameter", 7, 4.0))
sketch9.addConstraint(Sketcher.Constraint("DistanceX", 0, 3, 3, 3, Q("0.5625 in")))
sketch9.addConstraint(Sketcher.Constraint("DistanceX", 7, 3, 3, 3, Q("0.28125 in")))
sketch9.addConstraint(Sketcher.Constraint("DistanceY", 1, 2, 7, 3, Q("0.375 in")))
sketch9.addConstraint(Sketcher.Constraint("DistanceY", 4, 1, 4, 2, 17.97521))
sketch9.addConstraint(Sketcher.Constraint("DistanceX", -1, 1, 7, 3, 17.9375))
sketch9.addConstraint(Sketcher.Constraint("DistanceY", 7, 3, -1, 1, 140.475))
pocket5 = doc.addObject("PartDesign::Pocket", "Pocket004")
body.addObject(pocket5)
pocket5.Profile = sketch9
pocket5.Type = "ThroughAll"
pocket5.Midplane = True

sketch10 = doc.addObject("Sketcher::SketchObject", "Sketch009")
body.addObject(sketch10)
sketch10.AttachmentSupport = (doc.XY_Plane, [""])
sketch10.MapMode = "FlatFace"
sketch10.AttachmentOffset = App.Placement(Vector(0, 0, 0.125 * 25.4), App.Rotation())
sketch10.addGeometry(Part.LineSegment(Vector(10, -150, 0), Vector(25.875, -143.65, 0)), False)
sketch10.addGeometry(Part.LineSegment(Vector(25.875, -143.65, 0), Vector(25.875, -130.95, 0)), False)
sketch10.addGeometry(Part.LineSegment(Vector(25.875, -130.95, 0), Vector(10, -124.6, 0)), False)
sketch10.addGeometry(Part.LineSegment(Vector(10, -124.6, 0), Vector(10, -150, 0)), False)
sketch10.addGeometry(Part.Circle(Vector(17.9375, -137.3, 0), Vector(0, 0, 1), 2.032), False)
sketch10.addConstraint(Sketcher.Constraint("Coincident", 0, 2, 1, 1))
sketch10.addConstraint(Sketcher.Constraint("Coincident", 1, 2, 2, 1))
sketch10.addConstraint(Sketcher.Constraint("Coincident", 2, 2, 3, 1))
sketch10.addConstraint(Sketcher.Constraint("Coincident", 3, 2, 0, 1))
sketch10.addConstraint(Sketcher.Constraint("Vertical", 1))
sketch10.addConstraint(Sketcher.Constraint("Vertical", 3))
sketch10.addConstraint(Sketcher.Constraint("Equal", 0, 2))
sketch10.addConstraint(Sketcher.Constraint("Diameter", 4, Q("0.16 in")))
sketch10.addConstraint(Sketcher.Constraint("DistanceY", 3, 2, 3, 1, Q("1 in")))
sketch10.addConstraint(Sketcher.Constraint("DistanceY", 1, 1, 1, 2, Q("0.5 in")))
sketch10.addConstraint(Sketcher.Constraint("DistanceY", 4, 3, 2, 2, Q("0.5 in")))
sketch10.addConstraint(Sketcher.Constraint("DistanceX", 4, 3, 0, 2, Q("0.3125 in")))
sketch10.addConstraint(Sketcher.Constraint("DistanceX", 2, 2, 4, 3, Q("0.3125 in")))
sketch10.addConstraint(Sketcher.Constraint("DistanceX", -1, 1, 4, 3, 17.9375))
sketch10.addConstraint(Sketcher.Constraint("DistanceY", 4, 3, -1, 1, 137.3))
pad5 = doc.addObject("PartDesign::Pad", "Pad004")
body.addObject(pad5)
pad5.Profile = sketch10
pad5.Length = Q("0.125 in")
pad5.Reversed = True
doc.recompute()

fillet3 = doc.addObject("PartDesign::Fillet", "Fillet002")
body.addObject(fillet3)
fillet3.Base = (pad5, edges_at(pad5, [
    (25.875, -143.65, 1.587),
    (25.875, -130.95, 1.587),
    (10, -124.6, 1.587),
    (10, -150, 1.587),
]))
fillet3.Radius = Q("0.03125 in")

doc.recompute()
